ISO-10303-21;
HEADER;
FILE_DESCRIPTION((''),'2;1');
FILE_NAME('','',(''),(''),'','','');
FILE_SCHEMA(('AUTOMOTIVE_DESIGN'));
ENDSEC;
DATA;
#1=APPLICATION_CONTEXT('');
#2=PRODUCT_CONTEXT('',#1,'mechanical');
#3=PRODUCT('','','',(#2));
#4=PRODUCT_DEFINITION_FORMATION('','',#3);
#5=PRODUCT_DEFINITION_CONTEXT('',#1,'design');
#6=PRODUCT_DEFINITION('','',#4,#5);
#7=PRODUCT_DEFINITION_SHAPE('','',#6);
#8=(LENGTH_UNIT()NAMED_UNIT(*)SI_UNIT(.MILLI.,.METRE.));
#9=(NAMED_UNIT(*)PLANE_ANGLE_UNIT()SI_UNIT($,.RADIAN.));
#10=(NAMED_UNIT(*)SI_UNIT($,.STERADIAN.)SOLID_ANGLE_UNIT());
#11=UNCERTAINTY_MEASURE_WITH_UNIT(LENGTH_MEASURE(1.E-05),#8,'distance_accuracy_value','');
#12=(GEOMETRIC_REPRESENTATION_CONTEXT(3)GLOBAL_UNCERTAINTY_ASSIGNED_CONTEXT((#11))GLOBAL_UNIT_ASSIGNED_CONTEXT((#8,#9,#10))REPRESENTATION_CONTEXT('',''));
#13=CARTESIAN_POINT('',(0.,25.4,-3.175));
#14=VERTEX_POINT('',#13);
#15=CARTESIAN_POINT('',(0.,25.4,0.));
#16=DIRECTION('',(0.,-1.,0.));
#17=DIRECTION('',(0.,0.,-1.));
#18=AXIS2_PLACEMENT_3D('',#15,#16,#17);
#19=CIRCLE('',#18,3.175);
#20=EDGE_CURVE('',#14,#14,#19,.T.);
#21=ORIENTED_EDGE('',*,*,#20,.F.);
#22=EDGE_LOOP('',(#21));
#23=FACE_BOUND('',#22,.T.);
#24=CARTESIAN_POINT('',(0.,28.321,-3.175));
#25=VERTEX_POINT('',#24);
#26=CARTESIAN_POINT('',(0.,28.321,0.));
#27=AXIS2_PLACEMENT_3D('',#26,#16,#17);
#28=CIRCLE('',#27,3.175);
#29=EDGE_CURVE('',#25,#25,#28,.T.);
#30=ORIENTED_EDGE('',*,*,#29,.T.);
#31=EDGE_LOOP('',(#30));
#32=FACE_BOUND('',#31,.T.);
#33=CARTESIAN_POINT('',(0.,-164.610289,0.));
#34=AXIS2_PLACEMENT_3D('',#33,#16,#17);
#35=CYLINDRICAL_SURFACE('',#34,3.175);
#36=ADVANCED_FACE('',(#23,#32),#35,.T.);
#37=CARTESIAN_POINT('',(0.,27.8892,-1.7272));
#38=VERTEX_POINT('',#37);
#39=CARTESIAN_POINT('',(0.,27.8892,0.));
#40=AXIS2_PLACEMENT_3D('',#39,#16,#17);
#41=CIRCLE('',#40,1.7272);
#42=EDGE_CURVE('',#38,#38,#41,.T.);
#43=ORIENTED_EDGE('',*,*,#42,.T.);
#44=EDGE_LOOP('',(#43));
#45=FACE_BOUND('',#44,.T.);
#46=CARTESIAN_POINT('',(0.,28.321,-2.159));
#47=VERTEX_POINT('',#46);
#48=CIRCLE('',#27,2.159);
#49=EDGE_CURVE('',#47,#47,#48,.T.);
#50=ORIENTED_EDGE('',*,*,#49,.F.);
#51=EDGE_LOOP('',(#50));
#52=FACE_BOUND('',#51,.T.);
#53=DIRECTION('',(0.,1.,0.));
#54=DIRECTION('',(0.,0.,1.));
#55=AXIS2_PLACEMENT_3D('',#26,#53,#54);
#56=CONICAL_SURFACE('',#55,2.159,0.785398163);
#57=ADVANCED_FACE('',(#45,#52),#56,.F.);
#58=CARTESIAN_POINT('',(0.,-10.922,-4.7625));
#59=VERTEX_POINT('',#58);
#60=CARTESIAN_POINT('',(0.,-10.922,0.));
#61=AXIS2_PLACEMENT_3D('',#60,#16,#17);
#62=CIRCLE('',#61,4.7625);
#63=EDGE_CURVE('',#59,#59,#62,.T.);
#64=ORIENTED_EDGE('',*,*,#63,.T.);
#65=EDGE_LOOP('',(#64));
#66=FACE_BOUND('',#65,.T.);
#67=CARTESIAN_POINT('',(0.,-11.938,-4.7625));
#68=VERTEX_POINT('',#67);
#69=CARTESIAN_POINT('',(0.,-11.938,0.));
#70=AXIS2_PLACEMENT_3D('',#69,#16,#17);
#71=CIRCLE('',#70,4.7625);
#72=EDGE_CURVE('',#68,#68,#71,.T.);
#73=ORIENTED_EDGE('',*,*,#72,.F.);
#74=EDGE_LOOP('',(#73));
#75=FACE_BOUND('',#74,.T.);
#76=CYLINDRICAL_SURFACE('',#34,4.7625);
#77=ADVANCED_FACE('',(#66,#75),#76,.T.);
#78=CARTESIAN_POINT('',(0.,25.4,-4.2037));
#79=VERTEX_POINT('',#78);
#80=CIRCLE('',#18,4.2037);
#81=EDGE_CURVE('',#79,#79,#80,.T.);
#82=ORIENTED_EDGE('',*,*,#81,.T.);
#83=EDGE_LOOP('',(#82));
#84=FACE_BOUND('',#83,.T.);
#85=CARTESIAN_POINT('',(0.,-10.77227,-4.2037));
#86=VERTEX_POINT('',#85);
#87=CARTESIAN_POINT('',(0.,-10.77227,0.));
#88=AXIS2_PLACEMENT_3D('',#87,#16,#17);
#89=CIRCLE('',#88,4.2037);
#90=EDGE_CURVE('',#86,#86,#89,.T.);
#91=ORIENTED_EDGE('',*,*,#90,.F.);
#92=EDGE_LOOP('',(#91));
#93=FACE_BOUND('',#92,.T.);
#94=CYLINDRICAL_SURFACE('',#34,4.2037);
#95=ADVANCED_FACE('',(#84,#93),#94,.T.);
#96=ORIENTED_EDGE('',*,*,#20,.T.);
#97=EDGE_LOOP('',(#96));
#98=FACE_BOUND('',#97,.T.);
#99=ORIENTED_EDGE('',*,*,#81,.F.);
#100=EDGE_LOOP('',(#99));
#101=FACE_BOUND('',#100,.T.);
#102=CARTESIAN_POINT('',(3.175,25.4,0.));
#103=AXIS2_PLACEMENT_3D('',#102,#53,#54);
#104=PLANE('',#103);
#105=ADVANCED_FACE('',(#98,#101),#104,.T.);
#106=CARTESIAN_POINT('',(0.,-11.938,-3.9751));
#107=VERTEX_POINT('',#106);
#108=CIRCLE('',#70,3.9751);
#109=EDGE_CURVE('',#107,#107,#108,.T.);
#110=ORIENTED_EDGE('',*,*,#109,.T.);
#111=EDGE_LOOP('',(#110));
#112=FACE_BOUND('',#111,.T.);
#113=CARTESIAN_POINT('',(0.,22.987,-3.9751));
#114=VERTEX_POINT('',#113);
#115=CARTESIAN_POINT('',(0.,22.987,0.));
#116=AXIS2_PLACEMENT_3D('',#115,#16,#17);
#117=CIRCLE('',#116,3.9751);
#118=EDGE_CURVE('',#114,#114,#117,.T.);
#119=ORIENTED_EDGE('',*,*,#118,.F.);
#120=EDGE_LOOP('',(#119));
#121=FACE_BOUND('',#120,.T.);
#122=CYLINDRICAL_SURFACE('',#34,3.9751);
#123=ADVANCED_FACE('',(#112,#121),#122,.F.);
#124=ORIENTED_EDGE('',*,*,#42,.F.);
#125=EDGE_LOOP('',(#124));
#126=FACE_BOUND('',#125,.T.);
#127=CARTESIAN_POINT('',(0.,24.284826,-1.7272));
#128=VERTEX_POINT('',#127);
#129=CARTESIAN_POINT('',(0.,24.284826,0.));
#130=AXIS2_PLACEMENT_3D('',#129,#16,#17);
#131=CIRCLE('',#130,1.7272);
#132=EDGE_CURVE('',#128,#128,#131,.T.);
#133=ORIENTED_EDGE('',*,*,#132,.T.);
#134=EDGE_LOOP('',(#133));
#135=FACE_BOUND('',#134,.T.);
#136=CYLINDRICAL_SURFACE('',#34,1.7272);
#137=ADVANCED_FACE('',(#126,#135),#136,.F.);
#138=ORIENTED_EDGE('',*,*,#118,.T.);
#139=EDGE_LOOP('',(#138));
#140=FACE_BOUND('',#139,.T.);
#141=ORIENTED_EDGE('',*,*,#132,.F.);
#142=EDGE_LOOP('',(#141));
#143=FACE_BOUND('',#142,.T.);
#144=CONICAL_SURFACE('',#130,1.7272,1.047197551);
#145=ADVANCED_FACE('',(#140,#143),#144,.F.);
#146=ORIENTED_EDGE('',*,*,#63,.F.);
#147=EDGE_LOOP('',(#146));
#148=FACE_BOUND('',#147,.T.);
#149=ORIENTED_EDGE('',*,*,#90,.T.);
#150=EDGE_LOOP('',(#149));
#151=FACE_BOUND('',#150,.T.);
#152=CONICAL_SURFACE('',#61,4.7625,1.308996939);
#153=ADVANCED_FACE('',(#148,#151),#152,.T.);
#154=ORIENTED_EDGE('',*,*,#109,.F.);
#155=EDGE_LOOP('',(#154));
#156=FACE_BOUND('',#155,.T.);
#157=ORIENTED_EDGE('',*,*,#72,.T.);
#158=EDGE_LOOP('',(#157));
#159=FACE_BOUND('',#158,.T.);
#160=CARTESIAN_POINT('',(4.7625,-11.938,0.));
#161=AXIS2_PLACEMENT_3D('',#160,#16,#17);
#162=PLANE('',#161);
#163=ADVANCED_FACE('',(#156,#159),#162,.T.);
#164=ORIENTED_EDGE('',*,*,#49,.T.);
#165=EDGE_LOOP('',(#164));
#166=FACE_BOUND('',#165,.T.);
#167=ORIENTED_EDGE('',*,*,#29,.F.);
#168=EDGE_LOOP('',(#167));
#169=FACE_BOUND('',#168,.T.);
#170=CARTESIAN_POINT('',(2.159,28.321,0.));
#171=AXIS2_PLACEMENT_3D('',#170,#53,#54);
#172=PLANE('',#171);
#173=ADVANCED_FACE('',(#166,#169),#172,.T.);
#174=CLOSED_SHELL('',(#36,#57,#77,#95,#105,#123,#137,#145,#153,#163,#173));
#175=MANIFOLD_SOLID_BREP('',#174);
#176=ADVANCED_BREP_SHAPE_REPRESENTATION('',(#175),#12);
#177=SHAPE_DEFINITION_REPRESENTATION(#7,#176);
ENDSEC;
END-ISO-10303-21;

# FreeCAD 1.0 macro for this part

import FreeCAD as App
import Part
import Sketcher
from FreeCAD import Vector
Q = App.Units.Quantity


def add_polygon(sketch, points):
    """Adds a closed chain of lines whose ends are joined by coincident constraints."""
    first, n = sketch.GeometryCount, len(points)
    for a, b in zip(points, points[1:] + points[:1]):
        sketch.addGeometry(Part.LineSegment(App.Vector(*a, 0), App.Vector(*b, 0)), False)
    for i in range(n):
        sketch.addConstraint(Sketcher.Constraint("Coincident", first + i, 2, first + (i + 1) % n, 1))

doc = App.newDocument("Part")
body = doc.addObject("PartDesign::Body", "Body")

# Sketch on XY plane
sketch1 = doc.addObject("Sketcher::SketchObject", "Sketch")
body.addObject(sketch1)
sketch1.AttachmentSupport = (doc.XY_Plane, [""])
sketch1.MapMode = "FlatFace"
add_polygon(sketch1, [(4, 23), (4, -11.9), (4.8, -11.9), (4.8, -10.9), (4.2, -10.8), (4.2, 25.4), (3.2, 25.4), (3.2, 28.3), (2.2, 28.3), (1.7, 27.9), (1.7, 24.3)])  # lines 0-10
sketch1.addConstraint(Sketcher.Constraint("Vertical", 0))
sketch1.addConstraint(Sketcher.Constraint("Horizontal", 1))
sketch1.addConstraint(Sketcher.Constraint("Vertical", 2))
sketch1.addConstraint(Sketcher.Constraint("Vertical", 4))
sketch1.addConstraint(Sketcher.Constraint("Horizontal", 5))
sketch1.addConstraint(Sketcher.Constraint("Vertical", 6))
sketch1.addConstraint(Sketcher.Constraint("Horizontal", 7))
sketch1.addConstraint(Sketcher.Constraint("Vertical", 9))
sketch1.addConstraint(Sketcher.Constraint("Equal", 7, 2))
sketch1.addConstraint(Sketcher.Constraint("DistanceY", -1, 1, 4, 2, Q("1 in")))
sketch1.addConstraint(Sketcher.Constraint("Angle", 3, Q("165 deg")))
sketch1.addConstraint(Sketcher.Constraint("Angle", 8, Q("-135 deg")))
sketch1.addConstraint(Sketcher.Constraint("Angle", 10, Q("-30 deg")))
sketch1.addConstraint(Sketcher.Constraint("DistanceX", 7, 2, 7, 1, Q("0.04 in")))
sketch1.addConstraint(Sketcher.Constraint("DistanceX", 1, 1, 1, 2, Q("0.031 in")))
sketch1.addConstraint(Sketcher.Constraint("DistanceY", 0, 2, 0, 1, Q("1.375 in")))
sketch1.addConstraint(Sketcher.Constraint("DistanceY", 6, 1, 6, 2, Q("0.115 in")))
sketch1.addConstraint(Sketcher.Constraint("DistanceY", 0, 2, -1, 1, Q("0.47 in")))
sketch1.addConstraint(Sketcher.Constraint("DistanceX", 5, 2, 5, 1, Q("0.0405 in")))
sketch1.addConstraint(Sketcher.Constraint("DistanceX", -1, 1, 1, 2, Q("0.1875 in")))
sketch1.addConstraint(Sketcher.Constraint("DistanceX", -1, 1, 5, 2, Q("0.125 in")))
sketch1.addConstraint(Sketcher.Constraint("DistanceX", -1, 1, 8, 2, Q("0.068 in")))
revolution = doc.addObject("PartDesign::Revolution", "Revolution")
body.addObject(revolution)
revolution.Profile = sketch1
revolution.ReferenceAxis = (sketch1, ["V_Axis"])
revolution.Angle = 360

doc.recompute()
